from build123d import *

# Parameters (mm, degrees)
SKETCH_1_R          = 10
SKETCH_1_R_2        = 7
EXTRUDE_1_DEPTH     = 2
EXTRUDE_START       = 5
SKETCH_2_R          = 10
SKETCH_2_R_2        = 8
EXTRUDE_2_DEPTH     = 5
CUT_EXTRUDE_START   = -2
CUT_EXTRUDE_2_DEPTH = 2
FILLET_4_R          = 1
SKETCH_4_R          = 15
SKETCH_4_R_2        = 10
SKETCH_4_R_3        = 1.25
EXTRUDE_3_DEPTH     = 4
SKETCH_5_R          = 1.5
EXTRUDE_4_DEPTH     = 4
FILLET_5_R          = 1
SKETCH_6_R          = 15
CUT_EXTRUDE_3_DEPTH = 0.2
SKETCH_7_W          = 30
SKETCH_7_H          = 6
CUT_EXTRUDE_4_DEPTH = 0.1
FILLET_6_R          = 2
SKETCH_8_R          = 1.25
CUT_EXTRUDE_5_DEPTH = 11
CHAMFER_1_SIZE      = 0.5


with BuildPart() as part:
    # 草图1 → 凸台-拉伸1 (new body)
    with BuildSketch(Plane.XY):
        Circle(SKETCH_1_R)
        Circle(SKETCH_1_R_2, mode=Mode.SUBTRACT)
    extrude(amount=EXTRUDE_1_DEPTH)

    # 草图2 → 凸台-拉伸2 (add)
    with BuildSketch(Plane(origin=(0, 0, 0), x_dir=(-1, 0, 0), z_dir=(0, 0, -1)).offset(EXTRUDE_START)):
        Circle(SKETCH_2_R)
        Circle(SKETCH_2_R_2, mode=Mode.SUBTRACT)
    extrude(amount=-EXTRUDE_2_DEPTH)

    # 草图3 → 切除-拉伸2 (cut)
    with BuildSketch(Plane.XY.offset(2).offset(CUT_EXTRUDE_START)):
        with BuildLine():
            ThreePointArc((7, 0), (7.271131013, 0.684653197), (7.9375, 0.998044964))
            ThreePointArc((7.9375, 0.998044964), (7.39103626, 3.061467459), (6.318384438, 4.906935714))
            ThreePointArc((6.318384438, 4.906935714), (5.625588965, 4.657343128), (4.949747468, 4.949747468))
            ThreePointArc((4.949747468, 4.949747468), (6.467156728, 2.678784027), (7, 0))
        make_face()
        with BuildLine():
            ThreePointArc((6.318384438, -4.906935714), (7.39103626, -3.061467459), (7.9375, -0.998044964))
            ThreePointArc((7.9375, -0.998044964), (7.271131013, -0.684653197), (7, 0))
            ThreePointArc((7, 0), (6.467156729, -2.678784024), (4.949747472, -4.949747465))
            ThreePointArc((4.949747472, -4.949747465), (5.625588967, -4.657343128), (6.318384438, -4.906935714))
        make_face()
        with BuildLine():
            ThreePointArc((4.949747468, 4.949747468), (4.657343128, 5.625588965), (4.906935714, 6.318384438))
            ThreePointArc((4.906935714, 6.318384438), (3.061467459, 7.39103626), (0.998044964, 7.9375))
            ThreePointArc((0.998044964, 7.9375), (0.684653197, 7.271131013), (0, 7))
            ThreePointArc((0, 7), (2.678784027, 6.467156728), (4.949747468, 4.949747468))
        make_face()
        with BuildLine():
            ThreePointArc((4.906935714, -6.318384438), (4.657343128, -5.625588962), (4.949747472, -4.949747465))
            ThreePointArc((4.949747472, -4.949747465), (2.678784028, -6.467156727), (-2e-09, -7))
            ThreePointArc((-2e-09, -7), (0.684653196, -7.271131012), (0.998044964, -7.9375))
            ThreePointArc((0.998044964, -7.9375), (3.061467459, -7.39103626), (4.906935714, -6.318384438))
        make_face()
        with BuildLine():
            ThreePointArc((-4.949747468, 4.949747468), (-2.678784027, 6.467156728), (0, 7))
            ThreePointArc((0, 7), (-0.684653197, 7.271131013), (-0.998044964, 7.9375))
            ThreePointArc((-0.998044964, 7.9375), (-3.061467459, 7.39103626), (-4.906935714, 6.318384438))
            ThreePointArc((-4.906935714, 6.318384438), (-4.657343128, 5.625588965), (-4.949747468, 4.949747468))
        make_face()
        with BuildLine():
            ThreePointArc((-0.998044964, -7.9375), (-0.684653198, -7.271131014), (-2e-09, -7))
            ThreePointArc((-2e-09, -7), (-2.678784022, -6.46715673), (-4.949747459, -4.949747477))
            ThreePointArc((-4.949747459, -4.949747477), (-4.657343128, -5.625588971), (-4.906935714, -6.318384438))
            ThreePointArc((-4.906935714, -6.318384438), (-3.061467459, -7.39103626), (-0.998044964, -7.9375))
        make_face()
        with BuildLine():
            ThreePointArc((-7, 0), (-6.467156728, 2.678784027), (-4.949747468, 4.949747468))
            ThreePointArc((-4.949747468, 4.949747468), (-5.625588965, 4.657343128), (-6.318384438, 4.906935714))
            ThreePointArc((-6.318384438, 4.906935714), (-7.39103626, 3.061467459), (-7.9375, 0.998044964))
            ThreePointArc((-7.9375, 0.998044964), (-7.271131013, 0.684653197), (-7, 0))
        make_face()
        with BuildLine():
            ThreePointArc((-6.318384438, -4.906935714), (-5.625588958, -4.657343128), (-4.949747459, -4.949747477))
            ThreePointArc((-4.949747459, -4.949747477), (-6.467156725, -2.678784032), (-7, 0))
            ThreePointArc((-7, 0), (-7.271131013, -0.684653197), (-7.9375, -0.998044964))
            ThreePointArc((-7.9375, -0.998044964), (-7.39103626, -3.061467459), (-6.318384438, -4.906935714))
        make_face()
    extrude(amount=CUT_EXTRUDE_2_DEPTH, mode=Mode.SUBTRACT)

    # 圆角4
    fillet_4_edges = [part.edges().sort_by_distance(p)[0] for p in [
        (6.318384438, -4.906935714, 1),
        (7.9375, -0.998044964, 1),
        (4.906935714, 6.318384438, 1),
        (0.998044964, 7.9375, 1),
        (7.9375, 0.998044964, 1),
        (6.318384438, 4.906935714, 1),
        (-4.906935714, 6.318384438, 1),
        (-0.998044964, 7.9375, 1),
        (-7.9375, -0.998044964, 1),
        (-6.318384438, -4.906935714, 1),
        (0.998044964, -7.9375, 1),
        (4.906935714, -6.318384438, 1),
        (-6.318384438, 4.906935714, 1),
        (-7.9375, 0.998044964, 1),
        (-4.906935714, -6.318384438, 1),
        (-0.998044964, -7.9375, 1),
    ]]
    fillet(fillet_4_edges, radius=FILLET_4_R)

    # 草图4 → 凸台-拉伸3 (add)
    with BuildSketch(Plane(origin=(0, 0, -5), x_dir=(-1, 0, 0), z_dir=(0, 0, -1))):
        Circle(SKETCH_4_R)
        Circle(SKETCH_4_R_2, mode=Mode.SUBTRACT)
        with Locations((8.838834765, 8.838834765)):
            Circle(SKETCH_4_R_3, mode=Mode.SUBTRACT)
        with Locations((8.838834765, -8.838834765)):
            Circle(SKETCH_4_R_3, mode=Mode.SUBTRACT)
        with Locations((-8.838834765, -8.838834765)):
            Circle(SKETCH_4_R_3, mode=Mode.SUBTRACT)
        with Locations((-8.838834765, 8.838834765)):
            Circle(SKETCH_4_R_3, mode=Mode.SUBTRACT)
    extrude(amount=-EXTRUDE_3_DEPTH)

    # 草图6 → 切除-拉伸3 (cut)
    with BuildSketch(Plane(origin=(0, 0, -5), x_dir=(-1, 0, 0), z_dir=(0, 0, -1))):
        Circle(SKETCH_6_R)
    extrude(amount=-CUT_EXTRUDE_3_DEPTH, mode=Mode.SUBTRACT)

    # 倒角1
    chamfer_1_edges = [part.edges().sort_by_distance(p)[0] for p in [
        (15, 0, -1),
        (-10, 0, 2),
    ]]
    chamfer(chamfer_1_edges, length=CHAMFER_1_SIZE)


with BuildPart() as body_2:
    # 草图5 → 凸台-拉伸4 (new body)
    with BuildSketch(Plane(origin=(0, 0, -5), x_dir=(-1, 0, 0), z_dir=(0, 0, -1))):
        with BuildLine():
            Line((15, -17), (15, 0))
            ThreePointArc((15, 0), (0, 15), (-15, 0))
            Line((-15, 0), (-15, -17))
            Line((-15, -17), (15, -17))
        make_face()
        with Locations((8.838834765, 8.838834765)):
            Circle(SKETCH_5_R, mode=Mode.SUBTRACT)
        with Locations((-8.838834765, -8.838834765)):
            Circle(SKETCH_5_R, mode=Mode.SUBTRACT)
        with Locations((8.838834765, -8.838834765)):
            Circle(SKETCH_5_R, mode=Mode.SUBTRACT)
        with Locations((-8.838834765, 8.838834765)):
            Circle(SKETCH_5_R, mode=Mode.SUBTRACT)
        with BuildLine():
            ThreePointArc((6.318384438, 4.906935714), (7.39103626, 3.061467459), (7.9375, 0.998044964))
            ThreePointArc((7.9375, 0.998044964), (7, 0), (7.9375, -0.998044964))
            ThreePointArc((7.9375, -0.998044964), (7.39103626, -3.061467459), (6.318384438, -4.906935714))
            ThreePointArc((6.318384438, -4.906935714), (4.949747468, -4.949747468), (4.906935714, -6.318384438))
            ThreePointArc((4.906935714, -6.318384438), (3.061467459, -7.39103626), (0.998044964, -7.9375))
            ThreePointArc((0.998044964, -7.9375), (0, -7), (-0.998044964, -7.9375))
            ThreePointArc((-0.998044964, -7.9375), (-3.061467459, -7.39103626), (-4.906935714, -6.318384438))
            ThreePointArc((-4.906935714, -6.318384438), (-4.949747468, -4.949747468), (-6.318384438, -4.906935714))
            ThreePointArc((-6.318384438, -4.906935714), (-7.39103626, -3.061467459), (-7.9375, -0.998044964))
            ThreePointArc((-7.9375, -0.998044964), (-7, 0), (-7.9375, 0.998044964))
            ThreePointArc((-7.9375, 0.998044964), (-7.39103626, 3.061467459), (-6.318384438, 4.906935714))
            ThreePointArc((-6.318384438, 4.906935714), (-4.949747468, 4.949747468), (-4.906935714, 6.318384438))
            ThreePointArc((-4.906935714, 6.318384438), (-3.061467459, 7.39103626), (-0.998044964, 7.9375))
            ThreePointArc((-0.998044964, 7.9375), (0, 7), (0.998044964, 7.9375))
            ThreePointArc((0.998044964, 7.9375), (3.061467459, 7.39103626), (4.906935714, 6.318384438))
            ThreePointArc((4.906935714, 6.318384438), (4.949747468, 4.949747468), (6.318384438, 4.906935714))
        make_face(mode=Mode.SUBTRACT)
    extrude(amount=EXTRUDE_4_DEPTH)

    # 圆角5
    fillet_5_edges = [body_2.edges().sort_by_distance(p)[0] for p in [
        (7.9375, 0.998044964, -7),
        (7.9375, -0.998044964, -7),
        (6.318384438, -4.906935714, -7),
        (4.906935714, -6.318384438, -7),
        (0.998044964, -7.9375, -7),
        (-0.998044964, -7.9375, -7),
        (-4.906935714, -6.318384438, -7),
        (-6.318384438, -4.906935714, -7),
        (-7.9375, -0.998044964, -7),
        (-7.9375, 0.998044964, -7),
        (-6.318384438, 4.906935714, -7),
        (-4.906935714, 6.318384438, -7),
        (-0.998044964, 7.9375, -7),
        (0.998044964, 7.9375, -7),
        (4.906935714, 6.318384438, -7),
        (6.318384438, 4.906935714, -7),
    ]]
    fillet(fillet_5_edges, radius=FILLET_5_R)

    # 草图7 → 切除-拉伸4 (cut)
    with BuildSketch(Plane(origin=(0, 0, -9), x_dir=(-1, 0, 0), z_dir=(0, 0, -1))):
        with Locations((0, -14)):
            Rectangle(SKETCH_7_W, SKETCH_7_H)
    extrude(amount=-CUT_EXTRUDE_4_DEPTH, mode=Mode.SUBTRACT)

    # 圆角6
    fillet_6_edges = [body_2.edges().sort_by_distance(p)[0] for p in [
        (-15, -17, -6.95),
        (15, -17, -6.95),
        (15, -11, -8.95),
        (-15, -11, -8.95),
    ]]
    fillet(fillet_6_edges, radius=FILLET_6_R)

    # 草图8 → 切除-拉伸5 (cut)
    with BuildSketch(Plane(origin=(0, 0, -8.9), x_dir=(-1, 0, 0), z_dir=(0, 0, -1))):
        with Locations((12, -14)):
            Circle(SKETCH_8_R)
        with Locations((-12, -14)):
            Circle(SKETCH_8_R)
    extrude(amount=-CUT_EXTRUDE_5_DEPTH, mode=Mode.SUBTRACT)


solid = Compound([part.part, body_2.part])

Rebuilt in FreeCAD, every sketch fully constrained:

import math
import FreeCAD as App
import Part
import Sketcher
from FreeCAD import Vector
Q = App.Units.Quantity


def edges_at(feature, points):
    """Names of the edges that pass closest to the given points."""
    edges = feature.Shape.Edges
    near = lambda p: min(range(len(edges)), key=lambda i: edges[i].distToShape(Part.Vertex(*p))[0])
    return sorted({f"Edge{near(p) + 1}" for p in points})


def add_polygon(sketch, points):
    """Adds a closed chain of lines whose ends are joined by coincident constraints."""
    first, n = sketch.GeometryCount, len(points)
    for a, b in zip(points, points[1:] + points[:1]):
        sketch.addGeometry(Part.LineSegment(App.Vector(*a, 0), App.Vector(*b, 0)), False)
    for i in range(n):
        sketch.addConstraint(Sketcher.Constraint("Coincident", first + i, 2, first + (i + 1) % n, 1))

doc = App.newDocument("Part")
body = doc.addObject("PartDesign::Body", "Body")

# Sketch on XY plane
sketch1 = doc.addObject("Sketcher::SketchObject", "Sketch")
body.addObject(sketch1)
sketch1.AttachmentSupport = (doc.XY_Plane, [""])
sketch1.MapMode = "FlatFace"
sketch1.addGeometry(Part.Circle(Vector(0, 0, 0), Vector(0, 0, 1), 10), False)
sketch1.addGeometry(Part.Circle(Vector(0, 0, 0), Vector(0, 0, 1), 7), False)
sketch1.addConstraint(Sketcher.Constraint("Coincident", 0, 3, -1, 1))
sketch1.addConstraint(Sketcher.Constraint("Coincident", 1, 3, -1, 1))
sketch1.addConstraint(Sketcher.Constraint("Diameter", 0, Q("20 mm")))
sketch1.addConstraint(Sketcher.Constraint("Diameter", 1, Q("14 mm")))
pad1 = doc.addObject("PartDesign::Pad", "Pad")
body.addObject(pad1)
pad1.Profile = sketch1
pad1.Length = 2

# Sketch on XY plane
sketch2 = doc.addObject("Sketcher::SketchObject", "Sketch001")
body.addObject(sketch2)
sketch2.AttachmentSupport = (doc.XY_Plane, [""])
sketch2.MapMode = "FlatFace"
sketch2.AttachmentOffset = App.Placement(Vector(0, 0, -5), App.Rotation())
sketch2.addGeometry(Part.Circle(Vector(0, 0, 0), Vector(0, 0, 1), 10), False)
sketch2.addGeometry(Part.Circle(Vector(0, 0, 0), Vector(0, 0, 1), 8), False)
sketch2.addConstraint(Sketcher.Constraint("Coincident", 0, 3, -1, 1))
sketch2.addConstraint(Sketcher.Constraint("Coincident", 1, 3, -1, 1))
sketch2.addConstraint(Sketcher.Constraint("Diameter", 0, Q("20 mm")))
sketch2.addConstraint(Sketcher.Constraint("Diameter", 1, Q("16 mm")))
pad2 = doc.addObject("PartDesign::Pad", "Pad001")
body.addObject(pad2)
pad2.Profile = sketch2
pad2.Length = 5

# Sketch on XY plane
sketch3 = doc.addObject("Sketcher::SketchObject", "Sketch002")
body.addObject(sketch3)
sketch3.AttachmentSupport = (doc.XY_Plane, [""])
sketch3.MapMode = "FlatFace"
sketch3.addGeometry(Part.ArcOfCircle(Part.Circle(Vector(8, 0, 0), Vector(0, 0, 1), 1), math.radians(94), math.radians(180)), False)
sketch3.addGeometry(Part.ArcOfCircle(Part.Circle(Vector(0, 0, 0), Vector(0, 0, 1), 8), math.radians(7), math.radians(38)), False)
sketch3.addGeometry(Part.ArcOfCircle(Part.Circle(Vector(5.7, 5.7, 0), Vector(0, 0, 1), 1), math.radians(-135), math.radians(-49)), False)
sketch3.addGeometry(Part.ArcOfCircle(Part.Circle(Vector(0, 0, 0), Vector(0, 0, 1), 7), math.radians(0), math.radians(45)), False)
sketch3.addGeometry(Part.ArcOfCircle(Part.Circle(Vector(0, 0, 0), Vector(0, 0, 1), 8), math.radians(-38), math.radians(-7)), False)
sketch3.addGeometry(Part.ArcOfCircle(Part.Circle(Vector(8, 0, 0), Vector(0, 0, 1), 1), math.radians(180), math.radians(266)), False)
sketch3.addGeometry(Part.ArcOfCircle(Part.Circle(Vector(0, 0, 0), Vector(0, 0, 1), 7), math.radians(-45), math.radians(0)), False)
sketch3.addGeometry(Part.ArcOfCircle(Part.Circle(Vector(5.7, -5.7, 0), Vector(0, 0, 1), 1), math.radians(49), math.radians(135)), False)
sketch3.addGeometry(Part.ArcOfCircle(Part.Circle(Vector(5.7, 5.7, 0), Vector(0, 0, 1), 1), math.radians(139), math.radians(225)), False)
sketch3.addGeometry(Part.ArcOfCircle(Part.Circle(Vector(0, 0, 0), Vector(0, 0, 1), 8), math.radians(52), math.radians(83)), False)
sketch3.addGeometry(Part.ArcOfCircle(Part.Circle(Vector(0, 8, 0), Vector(0, 0, 1), 1), math.radians(-90), math.radians(-4)), False)
sketch3.addGeometry(Part.ArcOfCircle(Part.Circle(Vector(0, 0, 0), Vector(0, 0, 1), 7), math.radians(45), math.radians(90)), False)
sketch3.addGeometry(Part.ArcOfCircle(Part.Circle(Vector(5.7, -5.7, 0), Vector(0, 0, 1), 1), math.radians(135), math.radians(221)), False)
sketch3.addGeometry(Part.ArcOfCircle(Part.Circle(Vector(0, 0, 0), Vector(0, 0, 1), 7), math.radians(-90), math.radians(-45)), False)
sketch3.addGeometry(Part.ArcOfCircle(Part.Circle(Vector(0, -8, 0), Vector(0, 0, 1), 1), math.radians(4), math.radians(90)), False)
sketch3.addGeometry(Part.ArcOfCircle(Part.Circle(Vector(0, 0, 0), Vector(0, 0, 1), 8), math.radians(-83), math.radians(-52)), False)
sketch3.addGeometry(Part.ArcOfCircle(Part.Circle(Vector(0, 0, 0), Vector(0, 0, 1), 7), math.radians(90), math.radians(135)), False)
sketch3.addGeometry(Part.ArcOfCircle(Part.Circle(Vector(0, 8, 0), Vector(0, 0, 1), 1), math.radians(-176), math.radians(-90)), False)
sketch3.addGeometry(Part.ArcOfCircle(Part.Circle(Vector(0, 0, 0), Vector(0, 0, 1), 8), math.radians(97), math.radians(128)), False)
sketch3.addGeometry(Part.ArcOfCircle(Part.Circle(Vector(-5.7, 5.7, 0), Vector(0, 0, 1), 1), math.radians(-45), math.radians(41)), False)
sketch3.addGeometry(Part.ArcOfCircle(Part.Circle(Vector(0, -8, 0), Vector(0, 0, 1), 1), math.radians(90), math.radians(176)), False)
sketch3.addGeometry(Part.ArcOfCircle(Part.Circle(Vector(0, 0, 0), Vector(0, 0, 1), 7), math.radians(-135), math.radians(-90)), False)
sketch3.addGeometry(Part.ArcOfCircle(Part.Circle(Vector(-5.7, -5.7, 0), Vector(0, 0, 1), 1), math.radians(-41), math.radians(45)), False)
sketch3.addGeometry(Part.ArcOfCircle(Part.Circle(Vector(0, 0, 0), Vector(0, 0, 1), 8), math.radians(-128), math.radians(-97)), False)
sketch3.addGeometry(Part.ArcOfCircle(Part.Circle(Vector(0, 0, 0), Vector(0, 0, 1), 7), math.radians(135), math.radians(180)), False)
sketch3.addGeometry(Part.ArcOfCircle(Part.Circle(Vector(-5.7, 5.7, 0), Vector(0, 0, 1), 1), math.radians(-131), math.radians(-45)), False)
sketch3.addGeometry(Part.ArcOfCircle(Part.Circle(Vector(0, 0, 0), Vector(0, 0, 1), 8), math.radians(142), math.radians(173)), False)
sketch3.addGeometry(Part.ArcOfCircle(Part.Circle(Vector(-8, 0, 0), Vector(0, 0, 1), 1), math.radians(0), math.radians(86)), False)
sketch3.addGeometry(Part.ArcOfCircle(Part.Circle(Vector(-5.7, -5.7, 0), Vector(0, 0, 1), 1), math.radians(45), math.radians(131)), False)
sketch3.addGeometry(Part.ArcOfCircle(Part.Circle(Vector(0, 0, 0), Vector(0, 0, 1), 7), math.radians(-180), math.radians(-135)), False)
sketch3.addGeometry(Part.ArcOfCircle(Part.Circle(Vector(-8, 0, 0), Vector(0, 0, 1), 1), math.radians(-86), math.radians(0)), False)
sketch3.addGeometry(Part.ArcOfCircle(Part.Circle(Vector(0, 0, 0), Vector(0, 0, 1), 8), math.radians(-173), math.radians(-142)), False)
sketch3.addConstraint(Sketcher.Constraint("Coincident", 0, 1, 1, 1))
sketch3.addConstraint(Sketcher.Constraint("Coincident", 1, 2, 2, 2))
sketch3.addConstraint(Sketcher.Constraint("Tangent", 2, 1, 3, 2))
sketch3.addConstraint(Sketcher.Constraint("Tangent", 3, 1, 0, 2))
sketch3.addConstraint(Sketcher.Constraint("Coincident", 4, 2, 5, 2))
sketch3.addConstraint(Sketcher.Constraint("Tangent", 5, 1, 6, 2))
sketch3.addConstraint(Sketcher.Constraint("Tangent", 6, 1, 7, 2))
sketch3.addConstraint(Sketcher.Constraint("Coincident", 7, 1, 4, 1))
sketch3.addConstraint(Sketcher.Constraint("Coincident", 8, 1, 9, 1))
sketch3.addConstraint(Sketcher.Constraint("Coincident", 9, 2, 10, 2))
sketch3.addConstraint(Sketcher.Constraint("Tangent", 10, 1, 11, 2))
sketch3.addConstraint(Sketcher.Constraint("Tangent", 11, 1, 8, 2))
sketch3.addConstraint(Sketcher.Constraint("Tangent", 12, 1, 13, 2))
sketch3.addConstraint(Sketcher.Constraint("Tangent", 13, 1, 14, 2))
sketch3.addConstraint(Sketcher.Constraint("Coincident", 14, 1, 15, 1))
sketch3.addConstraint(Sketcher.Constraint("Coincident", 15, 2, 12, 2))
sketch3.addConstraint(Sketcher.Constraint("Tangent", 16, 1, 17, 2))
sketch3.addConstraint(Sketcher.Constraint("Coincident", 17, 1, 18, 1))
sketch3.addConstraint(Sketcher.Constraint("Coincident", 18, 2, 19, 2))
sketch3.addConstraint(Sketcher.Constraint("Tangent", 19, 1, 16, 2))
sketch3.addConstraint(Sketcher.Constraint("Tangent", 20, 1, 21, 2))
sketch3.addConstraint(Sketcher.Constraint("Tangent", 21, 1, 22, 2))
sketch3.addConstraint(Sketcher.Constraint("Coincident", 22, 1, 23, 1))
sketch3.addConstraint(Sketcher.Constraint("Coincident", 23, 2, 20, 2))
sketch3.addConstraint(Sketcher.Constraint("Tangent", 24, 1, 25, 2))
sketch3.addConstraint(Sketcher.Constraint("Coincident", 25, 1, 26, 1))
sketch3.addConstraint(Sketcher.Constraint("Coincident", 26, 2, 27, 2))
sketch3.addConstraint(Sketcher.Constraint("Tangent", 27, 1, 24, 2))
sketch3.addConstraint(Sketcher.Constraint("Tangent", 28, 1, 29, 2))
sketch3.addConstraint(Sketcher.Constraint("Tangent", 29, 1, 30, 2))
sketch3.addConstraint(Sketcher.Constraint("Coincident", 30, 1, 31, 1))
sketch3.addConstraint(Sketcher.Constraint("Coincident", 31, 2, 28, 2))
sketch3.addConstraint(Sketcher.Constraint("Coincident", 1, 3, -1, 1))
sketch3.addConstraint(Sketcher.Constraint("Coincident", 3, 3, -1, 1))
sketch3.addConstraint(Sketcher.Constraint("Coincident", 4, 3, -1, 1))
sketch3.addConstraint(Sketcher.Constraint("Coincident", 6, 3, -1, 1))
sketch3.addConstraint(Sketcher.Constraint("Coincident", 9, 3, -1, 1))
sketch3.addConstraint(Sketcher.Constraint("Coincident", 11, 3, -1, 1))
sketch3.addConstraint(Sketcher.Constraint("Coincident", 13, 3, -1, 1))
sketch3.addConstraint(Sketcher.Constraint("Coincident", 15, 3, -1, 1))
sketch3.addConstraint(Sketcher.Constraint("Coincident", 16, 3, -1, 1))
sketch3.addConstraint(Sketcher.Constraint("Coincident", 18, 3, -1, 1))
sketch3.addConstraint(Sketcher.Constraint("Coincident", 21, 3, -1, 1))
sketch3.addConstraint(Sketcher.Constraint("Coincident", 23, 3, -1, 1))
sketch3.addConstraint(Sketcher.Constraint("Coincident", 24, 3, -1, 1))
sketch3.addConstraint(Sketcher.Constraint("Coincident", 26, 3, -1, 1))
sketch3.addConstraint(Sketcher.Constraint("Coincident", 29, 3, -1, 1))
sketch3.addConstraint(Sketcher.Constraint("Coincident", 31, 3, -1, 1))
sketch3.addConstraint(Sketcher.Constraint("Coincident", 5, 3, 0, 3))
sketch3.addConstraint(Sketcher.Constraint("Coincident", 8, 3, 2, 3))
sketch3.addConstraint(Sketcher.Constraint("Coincident", 12, 3, 7, 3))
sketch3.addConstraint(Sketcher.Constraint("Coincident", 17, 3, 10, 3))
sketch3.addConstraint(Sketcher.Constraint("Coincident", 20, 3, 14, 3))
sketch3.addConstraint(Sketcher.Constraint("Coincident", 25, 3, 19, 3))
sketch3.addConstraint(Sketcher.Constraint("Coincident", 28, 3, 22, 3))
sketch3.addConstraint(Sketcher.Constraint("Coincident", 30, 3, 27, 3))
sketch3.addConstraint(Sketcher.Constraint("Equal", 0, 2))
sketch3.addConstraint(Sketcher.Constraint("Equal", 1, 4))
sketch3.addConstraint(Sketcher.Constraint("Equal", 2, 5))
sketch3.addConstraint(Sketcher.Constraint("Equal", 5, 7))
sketch3.addConstraint(Sketcher.Constraint("Equal", 7, 8))
sketch3.addConstraint(Sketcher.Constraint("Equal", 4, 9))
sketch3.addConstraint(Sketcher.Constraint("Equal", 8, 10))
sketch3.addConstraint(Sketcher.Constraint("Equal", 10, 12))
sketch3.addConstraint(Sketcher.Constraint("Equal", 12, 14))
sketch3.addConstraint(Sketcher.Constraint("Equal", 9, 15))
sketch3.addConstraint(Sketcher.Constraint("Equal", 13, 16))
sketch3.addConstraint(Sketcher.Constraint("Equal", 15, 18))
sketch3.addConstraint(Sketcher.Constraint("Equal", 17, 19))
sketch3.addConstraint(Sketcher.Constraint("Equal", 19, 20))
sketch3.addConstraint(Sketcher.Constraint("Equal", 20, 22))
sketch3.addConstraint(Sketcher.Constraint("Equal", 18, 23))
sketch3.addConstraint(Sketcher.Constraint("Equal", 21, 24))
sketch3.addConstraint(Sketcher.Constraint("Equal", 23, 26))
sketch3.addConstraint(Sketcher.Constraint("Equal", 25, 27))
sketch3.addConstraint(Sketcher.Constraint("Equal", 27, 28))
sketch3.addConstraint(Sketcher.Constraint("Equal", 26, 31))
sketch3.addConstraint(Sketcher.Constraint("PointOnObject", 0, 3, -1))
sketch3.addConstraint(Sketcher.Constraint("PointOnObject", 10, 3, -2))
sketch3.addConstraint(Sketcher.Constraint("PointOnObject", 14, 3, -2))
sketch3.addConstraint(Sketcher.Constraint("PointOnObject", 27, 3, -1))
sketch3.addConstraint(Sketcher.Constraint("Horizontal", 8, 3, 19, 3))
sketch3.addConstraint(Sketcher.Constraint("Horizontal", 12, 3, 22, 3))
sketch3.addConstraint(Sketcher.Constraint("Vertical", 2, 3, 7, 3))
sketch3.addConstraint(Sketcher.Constraint("Radius", 0, Q("1 mm")))
sketch3.addConstraint(Sketcher.Constraint("Radius", 1, Q("8 mm")))
sketch3.addConstraint(Sketcher.Constraint("Radius", 3, Q("7 mm")))
sketch3.addConstraint(Sketcher.Constraint("DistanceX", -1, 1, 2, 3, Q("5.656854 mm")))
pocket1 = doc.addObject("PartDesign::Pocket", "Pocket")
body.addObject(pocket1)
pocket1.Profile = sketch3
pocket1.Length = 2
pocket1.Reversed = True
doc.recompute()

fillet = doc.addObject("PartDesign::Fillet", "Fillet")
body.addObject(fillet)
fillet.Base = (pocket1, edges_at(pocket1, [
    (6.318, -4.907, 1),
    (7.938, -0.998, 1),
    (4.907, 6.318, 1),
    (0.998, 7.938, 1),
    (7.938, 0.998, 1),
    (6.318, 4.907, 1),
    (-4.907, 6.318, 1),
    (-0.998, 7.938, 1),
    (-7.938, -0.998, 1),
    (-6.318, -4.907, 1),
    (0.998, -7.938, 1),
    (4.907, -6.318, 1),
    (-6.318, 4.907, 1),
    (-7.938, 0.998, 1),
    (-4.907, -6.318, 1),
    (-0.998, -7.938, 1),
]))
fillet.Radius = 1

# Sketch on XY plane
sketch4 = doc.addObject("Sketcher::SketchObject", "Sketch003")
body.addObject(sketch4)
sketch4.AttachmentSupport = (doc.XY_Plane, [""])
sketch4.MapMode = "FlatFace"
sketch4.AttachmentOffset = App.Placement(Vector(0, 0, -5), App.Rotation())
sketch4.addGeometry(Part.Circle(Vector(0, 0, 0), Vector(0, 0, 1), 15), False)
sketch4.addGeometry(Part.Circle(Vector(8.8, -8.8, 0), Vector(0, 0, 1), 1.2), False)
sketch4.addGeometry(Part.Circle(Vector(-8.8, -8.8, 0), Vector(0, 0, 1), 1.2), False)
sketch4.addGeometry(Part.Circle(Vector(8.8, 8.8, 0), Vector(0, 0, 1), 1.2), False)
sketch4.addGeometry(Part.Circle(Vector(0, 0, 0), Vector(0, 0, 1), 10), False)
sketch4.addGeometry(Part.Circle(Vector(-8.8, 8.8, 0), Vector(0, 0, 1), 1.2), False)
sketch4.addConstraint(Sketcher.Constraint("Coincident", 0, 3, -1, 1))
sketch4.addConstraint(Sketcher.Constraint("Coincident", 4, 3, -1, 1))
sketch4.addConstraint(Sketcher.Constraint("Equal", 1, 2))
sketch4.addConstraint(Sketcher.Constraint("Equal", 2, 3))
sketch4.addConstraint(Sketcher.Constraint("Equal", 3, 5))
sketch4.addConstraint(Sketcher.Constraint("Symmetric", 2, 3, 3, 3, -1, 1))
sketch4.addConstraint(Sketcher.Constraint("Symmetric", 1, 3, 5, 3, -1, 1))
sketch4.addConstraint(Sketcher.Constraint("Symmetric", 1, 3, 2, 3, -2))
sketch4.addConstraint(Sketcher.Constraint("Diameter", 0, Q("30 mm")))
sketch4.addConstraint(Sketcher.Constraint("Diameter", 4, Q("20 mm")))
sketch4.addConstraint(Sketcher.Constraint("Diameter", 1, Q("2.5 mm")))
sketch4.addConstraint(Sketcher.Constraint("DistanceX", 2, 3, 1, 3, Q("17.67767 mm")))
sketch4.addConstraint(Sketcher.Constraint("DistanceY", 1, 3, 3, 3, Q("17.67767 mm")))
pad3 = doc.addObject("PartDesign::Pad", "Pad002")
body.addObject(pad3)
pad3.Profile = sketch4
pad3.Length = 4

# Sketch on XY plane
sketch5 = doc.addObject("Sketcher::SketchObject", "Sketch004")
body.addObject(sketch5)
sketch5.AttachmentSupport = (doc.XY_Plane, [""])
sketch5.MapMode = "FlatFace"
sketch5.AttachmentOffset = App.Placement(Vector(0, 0, -5), App.Rotation())
sketch5.addGeometry(Part.Circle(Vector(0, 0, 0), Vector(0, 0, 1), 15), False)
sketch5.addConstraint(Sketcher.Constraint("Coincident", 0, 3, -1, 1))
sketch5.addConstraint(Sketcher.Constraint("Diameter", 0, Q("30 mm")))
pocket2 = doc.addObject("PartDesign::Pocket", "Pocket001")
body.addObject(pocket2)
pocket2.Profile = sketch5
pocket2.Length = 0.2
pocket2.Reversed = True
doc.recompute()

chamfer = doc.addObject("PartDesign::Chamfer", "Chamfer")
body.addObject(chamfer)
chamfer.Base = (pocket2, edges_at(pocket2, [(15, 0, -1), (-10, 0, 2)]))
chamfer.Size = 0.5
body2 = doc.addObject("PartDesign::Body", "Body001")

# Sketch on XY plane
sketch6 = doc.addObject("Sketcher::SketchObject", "Sketch005")
body2.addObject(sketch6)
sketch6.AttachmentSupport = (doc.getObject("XY_Plane001"), [""])
sketch6.MapMode = "FlatFace"
sketch6.AttachmentOffset = App.Placement(Vector(0, 0, -5), App.Rotation())
sketch6.addGeometry(Part.LineSegment(Vector(-15, -17, 0), Vector(-15, 0, 0)), False)
sketch6.addGeometry(Part.ArcOfCircle(Part.Circle(Vector(0, 0, 0), Vector(0, 0, 1), 15), math.radians(0), math.radians(180)), False)
sketch6.addGeometry(Part.LineSegment(Vector(15, 0, 0), Vector(15, -17, 0)), False)
sketch6.addGeometry(Part.LineSegment(Vector(15, -17, 0), Vector(-15, -17, 0)), False)
sketch6.addGeometry(Part.Circle(Vector(8.8, -8.8, 0), Vector(0, 0, 1), 1.5), False)
sketch6.addGeometry(Part.Circle(Vector(-8.8, -8.8, 0), Vector(0, 0, 1), 1.5), False)
sketch6.addGeometry(Part.Circle(Vector(8.8, 8.8, 0), Vector(0, 0, 1), 1.5), False)
sketch6.addGeometry(Part.ArcOfCircle(Part.Circle(Vector(-5.7, 5.7, 0), Vector(0, 0, 1), 1), math.radians(-131), math.radians(41)), False)
sketch6.addGeometry(Part.ArcOfCircle(Part.Circle(Vector(0, 0, 0), Vector(0, 0, 1), 8), math.radians(142), math.radians(173)), False)
sketch6.addGeometry(Part.ArcOfCircle(Part.Circle(Vector(-8, 0, 0), Vector(0, 0, 1), 1), math.radians(-86), math.radians(86)), False)
sketch6.addGeometry(Part.ArcOfCircle(Part.Circle(Vector(0, 0, 0), Vector(0, 0, 1), 8), math.radians(-173), math.radians(-142)), False)
sketch6.addGeometry(Part.ArcOfCircle(Part.Circle(Vector(-5.7, -5.7, 0), Vector(0, 0, 1), 1), math.radians(-41), math.radians(131)), False)
sketch6.addGeometry(Part.ArcOfCircle(Part.Circle(Vector(0, 0, 0), Vector(0, 0, 1), 8), math.radians(-128), math.radians(-97)), False)
sketch6.addGeometry(Part.ArcOfCircle(Part.Circle(Vector(0, -8, 0), Vector(0, 0, 1), 1), math.radians(4), math.radians(176)), False)
sketch6.addGeometry(Part.ArcOfCircle(Part.Circle(Vector(0, 0, 0), Vector(0, 0, 1), 8), math.radians(-83), math.radians(-52)), False)
sketch6.addGeometry(Part.ArcOfCircle(Part.Circle(Vector(5.7, -5.7, 0), Vector(0, 0, 1), 1), math.radians(49), math.radians(221)), False)
sketch6.addGeometry(Part.ArcOfCircle(Part.Circle(Vector(0, 0, 0), Vector(0, 0, 1), 8), math.radians(-38), math.radians(-7)), False)
sketch6.addGeometry(Part.ArcOfCircle(Part.Circle(Vector(8, 0, 0), Vector(0, 0, 1), 1), math.radians(94), math.radians(266)), False)
sketch6.addGeometry(Part.ArcOfCircle(Part.Circle(Vector(0, 0, 0), Vector(0, 0, 1), 8), math.radians(7), math.radians(38)), False)
sketch6.addGeometry(Part.ArcOfCircle(Part.Circle(Vector(5.7, 5.7, 0), Vector(0, 0, 1), 1), math.radians(139), math.radians(311)), False)
sketch6.addGeometry(Part.ArcOfCircle(Part.Circle(Vector(0, 0, 0), Vector(0, 0, 1), 8), math.radians(52), math.radians(83)), False)
sketch6.addGeometry(Part.ArcOfCircle(Part.Circle(Vector(0, 8, 0), Vector(0, 0, 1), 1), math.radians(-176), math.radians(-4)), False)
sketch6.addGeometry(Part.ArcOfCircle(Part.Circle(Vector(0, 0, 0), Vector(0, 0, 1), 8), math.radians(97), math.radians(128)), False)
sketch6.addGeometry(Part.Circle(Vector(-8.8, 8.8, 0), Vector(0, 0, 1), 1.5), False)
sketch6.addConstraint(Sketcher.Constraint("Tangent", 0, 2, 1, 2))
sketch6.addConstraint(Sketcher.Constraint("Tangent", 1, 1, 2, 1))
sketch6.addConstraint(Sketcher.Constraint("Coincident", 2, 2, 3, 1))
sketch6.addConstraint(Sketcher.Constraint("Coincident", 3, 2, 0, 1))
sketch6.addConstraint(Sketcher.Constraint("Coincident", 7, 1, 8, 1))
sketch6.addConstraint(Sketcher.Constraint("Coincident", 8, 2, 9, 2))
sketch6.addConstraint(Sketcher.Constraint("Coincident", 9, 1, 10, 1))
sketch6.addConstraint(Sketcher.Constraint("Coincident", 10, 2, 11, 2))
sketch6.addConstraint(Sketcher.Constraint("Coincident", 11, 1, 12, 1))
sketch6.addConstraint(Sketcher.Constraint("Coincident", 12, 2, 13, 2))
sketch6.addConstraint(Sketcher.Constraint("Coincident", 13, 1, 14, 1))
sketch6.addConstraint(Sketcher.Constraint("Coincident", 14, 2, 15, 2))
sketch6.addConstraint(Sketcher.Constraint("Coincident", 15, 1, 16, 1))
sketch6.addConstraint(Sketcher.Constraint("Coincident", 16, 2, 17, 2))
sketch6.addConstraint(Sketcher.Constraint("Coincident", 17, 1, 18, 1))
sketch6.addConstraint(Sketcher.Constraint("Coincident", 18, 2, 19, 2))
sketch6.addConstraint(Sketcher.Constraint("Coincident", 19, 1, 20, 1))
sketch6.addConstraint(Sketcher.Constraint("Coincident", 20, 2, 21, 2))
sketch6.addConstraint(Sketcher.Constraint("Coincident", 21, 1, 22, 1))
sketch6.addConstraint(Sketcher.Constraint("Coincident", 22, 2, 7, 2))
sketch6.addConstraint(Sketcher.Constraint("Vertical", 0))
sketch6.addConstraint(Sketcher.Constraint("Vertical", 2))
sketch6.addConstraint(Sketcher.Constraint("Horizontal", 3))
sketch6.addConstraint(Sketcher.Constraint("Coincident", 1, 3, -1, 1))
sketch6.addConstraint(Sketcher.Constraint("Coincident", 8, 3, -1, 1))
sketch6.addConstraint(Sketcher.Constraint("Coincident", 10, 3, -1, 1))
sketch6.addConstraint(Sketcher.Constraint("Coincident", 12, 3, -1, 1))
sketch6.addConstraint(Sketcher.Constraint("Coincident", 14, 3, -1, 1))
sketch6.addConstraint(Sketcher.Constraint("Coincident", 16, 3, -1, 1))
sketch6.addConstraint(Sketcher.Constraint("Coincident", 18, 3, -1, 1))
sketch6.addConstraint(Sketcher.Constraint("Coincident", 20, 3, -1, 1))
sketch6.addConstraint(Sketcher.Constraint("Coincident", 22, 3, -1, 1))
sketch6.addConstraint(Sketcher.Constraint("Equal", 4, 5))
sketch6.addConstraint(Sketcher.Constraint("Equal", 5, 6))
sketch6.addConstraint(Sketcher.Constraint("Equal", 7, 9))
sketch6.addConstraint(Sketcher.Constraint("Equal", 8, 10))
sketch6.addConstraint(Sketcher.Constraint("Equal", 9, 11))
sketch6.addConstraint(Sketcher.Constraint("Equal", 10, 12))
sketch6.addConstraint(Sketcher.Constraint("Equal", 11, 13))
sketch6.addConstraint(Sketcher.Constraint("Equal", 12, 14))
sketch6.addConstraint(Sketcher.Constraint("Equal", 13, 15))
sketch6.addConstraint(Sketcher.Constraint("Equal", 14, 16))
sketch6.addConstraint(Sketcher.Constraint("Equal", 15, 17))
sketch6.addConstraint(Sketcher.Constraint("Equal", 16, 18))
sketch6.addConstraint(Sketcher.Constraint("Equal", 17, 19))
sketch6.addConstraint(Sketcher.Constraint("Equal", 18, 20))
sketch6.addConstraint(Sketcher.Constraint("Equal", 19, 21))
sketch6.addConstraint(Sketcher.Constraint("Equal", 20, 22))
sketch6.addConstraint(Sketcher.Constraint("Equal", 6, 23))
sketch6.addConstraint(Sketcher.Constraint("Symmetric", 5, 3, 6, 3, -1, 1))
sketch6.addConstraint(Sketcher.Constraint("Symmetric", 7, 3, 15, 3, -1, 1))
sketch6.addConstraint(Sketcher.Constraint("Symmetric", 9, 3, 17, 3, -1, 1))
sketch6.addConstraint(Sketcher.Constraint("Symmetric", 11, 3, 19, 3, -1, 1))
sketch6.addConstraint(Sketcher.Constraint("Symmetric", 13, 3, 21, 3, -1, 1))
sketch6.addConstraint(Sketcher.Constraint("Symmetric", 4, 3, 23, 3, -1, 1))
sketch6.addConstraint(Sketcher.Constraint("Symmetric", 4, 3, 5, 3, -2))
sketch6.addConstraint(Sketcher.Constraint("Symmetric", 11, 3, 15, 3, -2))
sketch6.addConstraint(Sketcher.Constraint("PointOnObject", 9, 3, -1))
sketch6.addConstraint(Sketcher.Constraint("PointOnObject", 13, 3, -2))
sketch6.addConstraint(Sketcher.Constraint("Diameter", 4, Q("3 mm")))
sketch6.addConstraint(Sketcher.Constraint("Radius", 1, Q("15 mm")))
sketch6.addConstraint(Sketcher.Constraint("Radius", 7, Q("1 mm")))
sketch6.addConstraint(Sketcher.Constraint("Radius", 8, Q("8 mm")))
sketch6.addConstraint(Sketcher.Constraint("DistanceY", 0, 1, 0, 2, Q("17 mm")))
sketch6.addConstraint(Sketcher.Constraint("DistanceX", 9, 3, -1, 1, Q("8 mm")))
sketch6.addConstraint(Sketcher.Constraint("DistanceY", 13, 3, -1, 1, Q("8 mm")))
sketch6.addConstraint(Sketcher.Constraint("DistanceY", 7, 1, 23, 3, Q("3.931899 mm")))
sketch6.addConstraint(Sketcher.Constraint("DistanceY", 11, 3, 8, 2, Q("6.654899 mm")))
sketch6.addConstraint(Sketcher.Constraint("DistanceX", 5, 3, 11, 1, Q("3.931899 mm")))
sketch6.addConstraint(Sketcher.Constraint("DistanceX", 12, 2, 15, 3, Q("6.654899 mm")))
pad4 = doc.addObject("PartDesign::Pad", "Pad003")
body2.addObject(pad4)
pad4.Profile = sketch6
pad4.Length = 4
pad4.Reversed = True
doc.recompute()

fillet2 = doc.addObject("PartDesign::Fillet", "Fillet001")
body2.addObject(fillet2)
fillet2.Base = (pad4, edges_at(pad4, [
    (7.938, 0.998, -7),
    (7.938, -0.998, -7),
    (6.318, -4.907, -7),
    (4.907, -6.318, -7),
    (0.998, -7.938, -7),
    (-0.998, -7.938, -7),
    (-4.907, -6.318, -7),
    (-6.318, -4.907, -7),
    (-7.938, -0.998, -7),
    (-7.938, 0.998, -7),
    (-6.318, 4.907, -7),
    (-4.907, 6.318, -7),
    (-0.998, 7.938, -7),
    (0.998, 7.938, -7),
    (4.907, 6.318, -7),
    (6.318, 4.907, -7),
]))
fillet2.Radius = 1

# Sketch on XY plane
sketch7 = doc.addObject("Sketcher::SketchObject", "Sketch006")
body2.addObject(sketch7)
sketch7.AttachmentSupport = (doc.getObject("XY_Plane001"), [""])
sketch7.MapMode = "FlatFace"
sketch7.AttachmentOffset = App.Placement(Vector(0, 0, -9), App.Rotation())
add_polygon(sketch7, [(15, -11), (15, -17), (-15, -17), (-15, -11)])  # lines 0-3
sketch7.addConstraint(Sketcher.Constraint("Vertical", 0))
sketch7.addConstraint(Sketcher.Constraint("Horizontal", 1))
sketch7.addConstraint(Sketcher.Constraint("Vertical", 2))
sketch7.addConstraint(Sketcher.Constraint("Horizontal", 3))
sketch7.addConstraint(Sketcher.Constraint("DistanceX", 1, 2, 1, 1, Q("30 mm")))
sketch7.addConstraint(Sketcher.Constraint("DistanceY", 0, 2, 0, 1, Q("6 mm")))
sketch7.addConstraint(Sketcher.Constraint("DistanceX", -1, 1, 0, 2, Q("15 mm")))
sketch7.addConstraint(Sketcher.Constraint("DistanceY", 0, 2, -1, 1, Q("17 mm")))
pocket3 = doc.addObject("PartDesign::Pocket", "Pocket002")
body2.addObject(pocket3)
pocket3.Profile = sketch7
pocket3.Length = 0.1
pocket3.Reversed = True
doc.recompute()

fillet3 = doc.addObject("PartDesign::Fillet", "Fillet002")
body2.addObject(fillet3)
fillet3.Base = (pocket3, edges_at(pocket3, [
    (-15, -17, -6.95),
    (15, -17, -6.95),
    (15, -11, -8.95),
    (-15, -11, -8.95),
]))
fillet3.Radius = 2

# Sketch on XY plane
sketch8 = doc.addObject("Sketcher::SketchObject", "Sketch007")
body2.addObject(sketch8)
sketch8.AttachmentSupport = (doc.getObject("XY_Plane001"), [""])
sketch8.MapMode = "FlatFace"
sketch8.AttachmentOffset = App.Placement(Vector(0, 0, -8.9), App.Rotation())
sketch8.addGeometry(Part.Circle(Vector(-12, -14, 0), Vector(0, 0, 1), 1.2), False)
sketch8.addGeometry(Part.Circle(Vector(12, -14, 0), Vector(0, 0, 1), 1.2), False)
sketch8.addConstraint(Sketcher.Constraint("Equal", 0, 1))
sketch8.addConstraint(Sketcher.Constraint("Symmetric", 0, 3, 1, 3, -2))
sketch8.addConstraint(Sketcher.Constraint("Diameter", 0, Q("2.5 mm")))
sketch8.addConstraint(Sketcher.Constraint("DistanceX", 0, 3, -1, 1, Q("12 mm")))
sketch8.addConstraint(Sketcher.Constraint("DistanceY", 0, 3, -1, 1, Q("14 mm")))
pocket4 = doc.addObject("PartDesign::Pocket", "Pocket003")
body2.addObject(pocket4)
pocket4.Profile = sketch8
pocket4.Length = 11
pocket4.Reversed = True

doc.recompute()
